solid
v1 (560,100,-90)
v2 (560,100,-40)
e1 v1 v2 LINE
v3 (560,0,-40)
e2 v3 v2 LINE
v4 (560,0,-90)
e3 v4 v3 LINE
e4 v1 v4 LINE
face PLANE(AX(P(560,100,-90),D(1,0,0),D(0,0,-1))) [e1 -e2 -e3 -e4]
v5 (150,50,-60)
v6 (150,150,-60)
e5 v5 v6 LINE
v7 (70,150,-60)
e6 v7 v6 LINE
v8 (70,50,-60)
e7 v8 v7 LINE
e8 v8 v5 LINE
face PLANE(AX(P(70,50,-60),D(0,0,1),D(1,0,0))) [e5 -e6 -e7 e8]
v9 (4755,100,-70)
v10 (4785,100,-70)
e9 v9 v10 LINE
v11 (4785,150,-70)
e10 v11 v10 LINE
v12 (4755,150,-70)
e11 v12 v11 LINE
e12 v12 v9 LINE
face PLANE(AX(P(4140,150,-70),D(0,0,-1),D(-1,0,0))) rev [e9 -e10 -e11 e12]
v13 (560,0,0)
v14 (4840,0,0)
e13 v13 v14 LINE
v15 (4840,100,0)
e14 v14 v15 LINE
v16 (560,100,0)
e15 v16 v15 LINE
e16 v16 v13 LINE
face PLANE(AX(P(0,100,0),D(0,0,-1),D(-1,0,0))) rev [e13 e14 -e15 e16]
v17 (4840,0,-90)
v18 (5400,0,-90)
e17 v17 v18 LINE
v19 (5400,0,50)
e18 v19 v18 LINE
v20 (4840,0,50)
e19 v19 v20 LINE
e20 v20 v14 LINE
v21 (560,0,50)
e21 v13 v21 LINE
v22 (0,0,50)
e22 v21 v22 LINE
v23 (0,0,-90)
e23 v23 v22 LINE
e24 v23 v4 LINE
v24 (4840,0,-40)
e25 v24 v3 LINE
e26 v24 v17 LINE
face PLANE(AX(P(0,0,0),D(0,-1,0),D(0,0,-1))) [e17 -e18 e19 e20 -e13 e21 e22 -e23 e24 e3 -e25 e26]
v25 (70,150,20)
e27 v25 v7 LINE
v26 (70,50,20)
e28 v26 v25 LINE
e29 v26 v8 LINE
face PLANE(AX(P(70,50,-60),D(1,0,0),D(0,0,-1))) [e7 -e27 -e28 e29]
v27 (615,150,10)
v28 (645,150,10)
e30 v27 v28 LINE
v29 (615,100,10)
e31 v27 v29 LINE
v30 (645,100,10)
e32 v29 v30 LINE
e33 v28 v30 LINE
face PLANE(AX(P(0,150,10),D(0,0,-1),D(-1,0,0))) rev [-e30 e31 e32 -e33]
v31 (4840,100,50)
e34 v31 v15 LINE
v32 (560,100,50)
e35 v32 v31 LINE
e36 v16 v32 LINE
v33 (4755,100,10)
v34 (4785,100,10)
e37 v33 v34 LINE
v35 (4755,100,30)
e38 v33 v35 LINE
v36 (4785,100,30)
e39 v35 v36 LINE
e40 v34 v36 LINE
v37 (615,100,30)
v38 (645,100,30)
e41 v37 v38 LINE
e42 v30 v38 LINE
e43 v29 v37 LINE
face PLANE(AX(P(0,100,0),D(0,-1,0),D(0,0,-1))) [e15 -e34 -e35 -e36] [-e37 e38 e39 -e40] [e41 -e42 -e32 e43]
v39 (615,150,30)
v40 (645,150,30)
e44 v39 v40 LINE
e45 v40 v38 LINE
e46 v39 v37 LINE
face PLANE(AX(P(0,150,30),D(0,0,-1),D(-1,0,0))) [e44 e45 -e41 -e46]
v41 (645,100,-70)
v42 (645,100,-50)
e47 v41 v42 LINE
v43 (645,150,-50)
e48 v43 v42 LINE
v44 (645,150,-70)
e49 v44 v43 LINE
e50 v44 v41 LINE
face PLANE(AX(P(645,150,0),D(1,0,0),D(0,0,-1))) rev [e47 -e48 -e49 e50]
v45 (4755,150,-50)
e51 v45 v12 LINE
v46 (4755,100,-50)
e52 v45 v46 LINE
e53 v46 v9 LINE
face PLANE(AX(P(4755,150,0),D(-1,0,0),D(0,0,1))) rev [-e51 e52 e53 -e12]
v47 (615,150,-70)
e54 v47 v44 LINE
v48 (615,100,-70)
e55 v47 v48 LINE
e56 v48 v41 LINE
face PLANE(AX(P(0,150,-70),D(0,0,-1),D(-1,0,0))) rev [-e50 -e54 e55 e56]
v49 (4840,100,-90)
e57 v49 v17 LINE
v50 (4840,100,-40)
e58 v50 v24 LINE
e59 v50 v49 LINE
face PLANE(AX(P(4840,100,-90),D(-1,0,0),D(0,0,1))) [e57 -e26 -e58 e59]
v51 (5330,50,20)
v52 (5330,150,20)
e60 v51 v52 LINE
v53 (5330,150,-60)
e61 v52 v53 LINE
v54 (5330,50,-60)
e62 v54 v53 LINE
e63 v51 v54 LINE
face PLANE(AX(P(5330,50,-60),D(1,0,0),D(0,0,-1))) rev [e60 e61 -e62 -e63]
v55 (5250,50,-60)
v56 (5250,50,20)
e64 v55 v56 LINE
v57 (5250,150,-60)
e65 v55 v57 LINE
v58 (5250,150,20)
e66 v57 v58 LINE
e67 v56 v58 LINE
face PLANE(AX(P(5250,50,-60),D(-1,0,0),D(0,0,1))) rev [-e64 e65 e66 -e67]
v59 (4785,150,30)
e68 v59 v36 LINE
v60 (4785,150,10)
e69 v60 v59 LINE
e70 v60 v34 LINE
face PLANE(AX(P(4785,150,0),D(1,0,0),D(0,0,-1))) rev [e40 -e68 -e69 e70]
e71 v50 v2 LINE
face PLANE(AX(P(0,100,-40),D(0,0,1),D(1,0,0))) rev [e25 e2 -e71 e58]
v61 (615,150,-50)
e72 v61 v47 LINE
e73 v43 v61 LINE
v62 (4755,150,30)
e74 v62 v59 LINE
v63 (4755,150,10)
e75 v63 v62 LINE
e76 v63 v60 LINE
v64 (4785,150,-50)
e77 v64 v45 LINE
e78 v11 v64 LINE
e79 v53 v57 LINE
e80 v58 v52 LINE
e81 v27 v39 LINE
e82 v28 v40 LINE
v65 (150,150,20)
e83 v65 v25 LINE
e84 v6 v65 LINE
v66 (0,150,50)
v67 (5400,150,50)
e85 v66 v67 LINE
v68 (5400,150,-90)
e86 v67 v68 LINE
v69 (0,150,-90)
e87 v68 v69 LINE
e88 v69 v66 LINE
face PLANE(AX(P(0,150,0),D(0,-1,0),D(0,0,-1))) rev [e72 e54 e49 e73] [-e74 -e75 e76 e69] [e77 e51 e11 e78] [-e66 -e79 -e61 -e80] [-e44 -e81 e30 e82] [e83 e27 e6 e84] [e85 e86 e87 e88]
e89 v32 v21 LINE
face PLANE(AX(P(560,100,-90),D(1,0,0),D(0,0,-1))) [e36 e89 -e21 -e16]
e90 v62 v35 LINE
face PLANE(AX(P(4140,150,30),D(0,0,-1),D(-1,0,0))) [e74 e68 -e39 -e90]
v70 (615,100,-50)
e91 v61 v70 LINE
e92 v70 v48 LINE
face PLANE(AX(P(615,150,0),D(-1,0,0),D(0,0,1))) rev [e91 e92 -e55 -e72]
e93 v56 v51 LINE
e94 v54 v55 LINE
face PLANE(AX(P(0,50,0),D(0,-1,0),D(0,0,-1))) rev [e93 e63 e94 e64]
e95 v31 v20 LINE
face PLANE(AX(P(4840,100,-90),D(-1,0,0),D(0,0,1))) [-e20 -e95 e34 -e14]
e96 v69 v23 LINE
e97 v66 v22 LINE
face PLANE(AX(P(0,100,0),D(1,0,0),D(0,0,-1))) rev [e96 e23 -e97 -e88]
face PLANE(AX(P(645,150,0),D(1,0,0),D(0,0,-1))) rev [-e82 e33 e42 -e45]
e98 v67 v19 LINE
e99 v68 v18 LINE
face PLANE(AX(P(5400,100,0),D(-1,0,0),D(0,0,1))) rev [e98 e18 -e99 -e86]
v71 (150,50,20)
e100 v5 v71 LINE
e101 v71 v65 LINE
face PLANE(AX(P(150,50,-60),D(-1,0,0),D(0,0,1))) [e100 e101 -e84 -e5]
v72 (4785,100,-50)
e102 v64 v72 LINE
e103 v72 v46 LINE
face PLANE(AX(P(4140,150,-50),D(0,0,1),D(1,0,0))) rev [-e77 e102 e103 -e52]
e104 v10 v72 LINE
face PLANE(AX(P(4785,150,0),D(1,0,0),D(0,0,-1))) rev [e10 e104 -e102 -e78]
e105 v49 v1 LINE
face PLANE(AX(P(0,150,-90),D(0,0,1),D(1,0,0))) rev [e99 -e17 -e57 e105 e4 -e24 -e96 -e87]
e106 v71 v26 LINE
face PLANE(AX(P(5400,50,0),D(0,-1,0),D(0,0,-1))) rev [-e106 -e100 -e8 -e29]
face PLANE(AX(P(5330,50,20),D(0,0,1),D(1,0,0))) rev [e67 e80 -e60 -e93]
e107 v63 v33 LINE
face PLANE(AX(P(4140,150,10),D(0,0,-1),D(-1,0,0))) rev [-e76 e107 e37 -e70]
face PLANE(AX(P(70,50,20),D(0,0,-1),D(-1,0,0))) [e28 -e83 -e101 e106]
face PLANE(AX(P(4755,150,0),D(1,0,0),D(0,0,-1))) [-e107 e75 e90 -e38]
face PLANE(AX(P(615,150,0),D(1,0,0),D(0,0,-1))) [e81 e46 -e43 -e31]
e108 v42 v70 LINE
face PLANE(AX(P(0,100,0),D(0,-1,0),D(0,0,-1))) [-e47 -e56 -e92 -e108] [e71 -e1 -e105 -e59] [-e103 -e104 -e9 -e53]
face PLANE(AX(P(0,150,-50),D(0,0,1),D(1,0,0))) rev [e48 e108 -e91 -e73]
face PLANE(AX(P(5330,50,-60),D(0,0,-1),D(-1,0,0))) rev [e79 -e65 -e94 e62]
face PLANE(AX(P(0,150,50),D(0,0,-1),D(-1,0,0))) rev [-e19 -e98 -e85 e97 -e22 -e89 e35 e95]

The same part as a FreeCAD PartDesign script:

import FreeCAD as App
import Part
import Sketcher

doc = App.newDocument("Part")
body = doc.addObject("PartDesign::Body", "Body")

# Sketch on XZ plane
sketch1 = body.newObject("Sketcher::SketchObject", "Sketch")
sketch1.AttachmentSupport = (doc.getObject("XZ_Plane"), [""])
sketch1.MapMode = "FlatFace"
sketch1.addGeometry([
    Part.LineSegment(App.Vector(0, -40, 0), App.Vector(0, 0, 0)),
    Part.LineSegment(App.Vector(0, 0, 0), App.Vector(5400, 0, 0)),
    Part.LineSegment(App.Vector(5400, 0, 0), App.Vector(5400, -40, 0)),
    Part.LineSegment(App.Vector(5400, -40, 0), App.Vector(0, -40, 0)),
], False)
sketch1.addConstraint([
    Sketcher.Constraint("Coincident", 0, 2, 1, 1),
    Sketcher.Constraint("Coincident", 1, 2, 2, 1),
    Sketcher.Constraint("Coincident", 2, 2, 3, 1),
    Sketcher.Constraint("Coincident", 3, 2, 0, 1),
    Sketcher.Constraint("Vertical", 0),
    Sketcher.Constraint("Horizontal", 1),
    Sketcher.Constraint("Vertical", 2),
    Sketcher.Constraint("Horizontal", 3),
    Sketcher.Constraint("Coincident", 0, 2, -1, 1),
    Sketcher.Constraint("DistanceX", 1, 1, 1, 2, 5400.0),
    Sketcher.Constraint("DistanceY", 0, 1, 0, 2, 40.0),
])
pad1 = body.newObject("PartDesign::Pad", "Pad")
pad1.Profile = sketch1
pad1.Length = 100
pad1.Reversed = True

# Sketch on XZ plane
sketch2 = body.newObject("Sketcher::SketchObject", "Sketch001")
sketch2.AttachmentSupport = (doc.getObject("XZ_Plane"), [""])
sketch2.MapMode = "FlatFace"
sketch2.AttachmentOffset = App.Placement(App.Vector(0, 0, -100), App.Rotation())
sketch2.addGeometry([
    Part.LineSegment(App.Vector(0, -90, 0), App.Vector(0, 50, 0)),
    Part.LineSegment(App.Vector(0, 50, 0), App.Vector(5400, 50, 0)),
    Part.LineSegment(App.Vector(5400, 50, 0), App.Vector(5400, -90, 0)),
    Part.LineSegment(App.Vector(5400, -90, 0), App.Vector(0, -90, 0)),
], False)
sketch2.addConstraint([
    Sketcher.Constraint("Coincident", 0, 2, 1, 1),
    Sketcher.Constraint("Coincident", 1, 2, 2, 1),
    Sketcher.Constraint("Coincident", 2, 2, 3, 1),
    Sketcher.Constraint("Coincident", 3, 2, 0, 1),
    Sketcher.Constraint("Vertical", 0),
    Sketcher.Constraint("Horizontal", 1),
    Sketcher.Constraint("Vertical", 2),
    Sketcher.Constraint("Horizontal", 3),
    Sketcher.Constraint("PointOnObject", 0, 2, -2),
    Sketcher.Constraint("DistanceX", 1, 1, 1, 2, 5400.0),
    Sketcher.Constraint("DistanceY", 0, 1, 0, 2, 140.0),
    Sketcher.Constraint("DistanceY", -1, 1, 0, 2, 50.0),
])
pad2 = body.newObject("PartDesign::Pad", "Pad001")
pad2.Profile = sketch2
pad2.Length = 50
pad2.Reversed = True

# Sketch on XZ plane
sketch3 = body.newObject("Sketcher::SketchObject", "Sketch002")
sketch3.AttachmentSupport = (doc.getObject("XZ_Plane"), [""])
sketch3.MapMode = "FlatFace"
sketch3.AttachmentOffset = App.Placement(App.Vector(0, 0, -100), App.Rotation())
sketch3.addGeometry([
    Part.LineSegment(App.Vector(615, -50, 0), App.Vector(615, -70, 0)),  # 0
    Part.LineSegment(App.Vector(615, -70, 0), App.Vector(645, -70, 0)),  # 1
    Part.LineSegment(App.Vector(645, -70, 0), App.Vector(645, -50, 0)),  # 2
    Part.LineSegment(App.Vector(645, -50, 0), App.Vector(615, -50, 0)),  # 3
    Part.LineSegment(App.Vector(615, 30, 0), App.Vector(615, 10, 0)),  # 4
    Part.LineSegment(App.Vector(615, 10, 0), App.Vector(645, 10, 0)),  # 5
    Part.LineSegment(App.Vector(645, 10, 0), App.Vector(645, 30, 0)),  # 6
    Part.LineSegment(App.Vector(645, 30, 0), App.Vector(615, 30, 0)),  # 7
], False)
sketch3.addConstraint([
    Sketcher.Constraint("Coincident", 0, 2, 1, 1),
    Sketcher.Constraint("Coincident", 1, 2, 2, 1),
    Sketcher.Constraint("Coincident", 2, 2, 3, 1),
    Sketcher.Constraint("Coincident", 3, 2, 0, 1),
    Sketcher.Constraint("Coincident", 4, 2, 5, 1),
    Sketcher.Constraint("Coincident", 5, 2, 6, 1),
    Sketcher.Constraint("Coincident", 6, 2, 7, 1),
    Sketcher.Constraint("Coincident", 7, 2, 4, 1),
    Sketcher.Constraint("Vertical", 0),
    Sketcher.Constraint("Horizontal", 1),
    Sketcher.Constraint("Vertical", 2),
    Sketcher.Constraint("Horizontal", 3),
    Sketcher.Constraint("Vertical", 4),
    Sketcher.Constraint("Horizontal", 5),
    Sketcher.Constraint("Vertical", 6),
    Sketcher.Constraint("Horizontal", 7),
    Sketcher.Constraint("Vertical", 3, 2, 4, 2),
    Sketcher.Constraint("Vertical", 2, 2, 5, 2),
    Sketcher.Constraint("Equal", 2, 4),
    Sketcher.Constraint("DistanceX", 1, 1, 1, 2, 30.0),
    Sketcher.Constraint("DistanceY", 0, 2, 0, 1, 20.0),
    Sketcher.Constraint("DistanceX", -1, 1, 0, 2, 615.0),
    Sketcher.Constraint("DistanceY", 0, 2, -1, 1, 70.0),
    Sketcher.Constraint("DistanceY", -1, 1, 4, 2, 10.0),
])
pocket1 = body.newObject("PartDesign::Pocket", "Pocket")
pocket1.Profile = sketch3
pocket1.Type = "ThroughAll"
doc.recompute()

linearpattern = body.newObject("PartDesign::LinearPattern", "LinearPattern")
linearpattern.Originals = [pocket1]
linearpattern.Direction = (doc.getObject("X_Axis"), [""])
linearpattern.Mode = "offset"
linearpattern.Offset = 4140
linearpattern.Occurrences = 2
body.Tip = linearpattern

# Sketch on XZ plane
sketch4 = body.newObject("Sketcher::SketchObject", "Sketch003")
sketch4.AttachmentSupport = (doc.getObject("XZ_Plane"), [""])
sketch4.MapMode = "FlatFace"
sketch4.addGeometry([
    Part.LineSegment(App.Vector(4840, 50, 0), App.Vector(4840, -90, 0)),
    Part.LineSegment(App.Vector(4840, -90, 0), App.Vector(5400, -90, 0)),
    Part.LineSegment(App.Vector(5400, -90, 0), App.Vector(5400, 50, 0)),
    Part.LineSegment(App.Vector(5400, 50, 0), App.Vector(4840, 50, 0)),
], False)
sketch4.addConstraint([
    Sketcher.Constraint("Coincident", 0, 2, 1, 1),
    Sketcher.Constraint("Coincident", 1, 2, 2, 1),
    Sketcher.Constraint("Coincident", 2, 2, 3, 1),
    Sketcher.Constraint("Coincident", 3, 2, 0, 1),
    Sketcher.Constraint("Vertical", 0),
    Sketcher.Constraint("Horizontal", 1),
    Sketcher.Constraint("Vertical", 2),
    Sketcher.Constraint("Horizontal", 3),
    Sketcher.Constraint("DistanceX", 1, 1, 1, 2, 560.0),
    Sketcher.Constraint("DistanceY", 0, 2, 0, 1, 140.0),
    Sketcher.Constraint("DistanceX", -1, 1, 0, 2, 4840.0),
    Sketcher.Constraint("DistanceY", 0, 2, -1, 1, 90.0),
])
pad3 = body.newObject("PartDesign::Pad", "Pad002")
pad3.Profile = sketch4
pad3.Length = 100
pad3.Reversed = True
doc.recompute()

linearpattern2 = body.newObject("PartDesign::LinearPattern", "LinearPattern001")
linearpattern2.Originals = [pad3]
linearpattern2.Direction = (doc.getObject("X_Axis"), [""])
linearpattern2.Mode = "offset"
linearpattern2.Offset = 4840
linearpattern2.Occurrences = 2
linearpattern2.Reversed = True
body.Tip = linearpattern2

# Sketch on XZ plane
sketch5 = body.newObject("Sketcher::SketchObject", "Sketch004")
sketch5.AttachmentSupport = (doc.getObject("XZ_Plane"), [""])
sketch5.MapMode = "FlatFace"
sketch5.AttachmentOffset = App.Placement(App.Vector(0, 0, -150), App.Rotation())
sketch5.addGeometry([
    Part.LineSegment(App.Vector(5250, -60, 0), App.Vector(5250, 20, 0)),
    Part.LineSegment(App.Vector(5250, 20, 0), App.Vector(5330, 20, 0)),
    Part.LineSegment(App.Vector(5330, 20, 0), App.Vector(5330, -60, 0)),
    Part.LineSegment(App.Vector(5330, -60, 0), App.Vector(5250, -60, 0)),
], False)
sketch5.addConstraint([
    Sketcher.Constraint("Coincident", 0, 2, 1, 1),
    Sketcher.Constraint("Coincident", 1, 2, 2, 1),
    Sketcher.Constraint("Coincident", 2, 2, 3, 1),
    Sketcher.Constraint("Coincident", 3, 2, 0, 1),
    Sketcher.Constraint("Vertical", 0),
    Sketcher.Constraint("Horizontal", 1),
    Sketcher.Constraint("Vertical", 2),
    Sketcher.Constraint("Horizontal", 3),
    Sketcher.Constraint("Equal", 3, 0),
    Sketcher.Constraint("DistanceX", 1, 1, 1, 2, 80.0),
    Sketcher.Constraint("DistanceX", -1, 1, 0, 2, 5250.0),
    Sketcher.Constraint("DistanceY", -1, 1, 0, 2, 20.0),
])
pocket2 = body.newObject("PartDesign::Pocket", "Pocket001")
pocket2.Profile = sketch5
pocket2.Length = 100
pocket2.Reversed = True
doc.recompute()

datumplane = body.newObject("PartDesign::Plane", "DatumPlane")
datumplane.AttachmentSupport = (doc.getObject("YZ_Plane"), [""])
datumplane.MapMode = "FlatFace"
datumplane.AttachmentOffset = App.Placement(App.Vector(0, 0, 2700), App.Rotation())
mirrored = body.newObject("PartDesign::Mirrored", "Mirrored")
mirrored.Originals = [pocket2]
mirrored.MirrorPlane = (datumplane, [""])
body.Tip = mirrored

doc.recompute()
